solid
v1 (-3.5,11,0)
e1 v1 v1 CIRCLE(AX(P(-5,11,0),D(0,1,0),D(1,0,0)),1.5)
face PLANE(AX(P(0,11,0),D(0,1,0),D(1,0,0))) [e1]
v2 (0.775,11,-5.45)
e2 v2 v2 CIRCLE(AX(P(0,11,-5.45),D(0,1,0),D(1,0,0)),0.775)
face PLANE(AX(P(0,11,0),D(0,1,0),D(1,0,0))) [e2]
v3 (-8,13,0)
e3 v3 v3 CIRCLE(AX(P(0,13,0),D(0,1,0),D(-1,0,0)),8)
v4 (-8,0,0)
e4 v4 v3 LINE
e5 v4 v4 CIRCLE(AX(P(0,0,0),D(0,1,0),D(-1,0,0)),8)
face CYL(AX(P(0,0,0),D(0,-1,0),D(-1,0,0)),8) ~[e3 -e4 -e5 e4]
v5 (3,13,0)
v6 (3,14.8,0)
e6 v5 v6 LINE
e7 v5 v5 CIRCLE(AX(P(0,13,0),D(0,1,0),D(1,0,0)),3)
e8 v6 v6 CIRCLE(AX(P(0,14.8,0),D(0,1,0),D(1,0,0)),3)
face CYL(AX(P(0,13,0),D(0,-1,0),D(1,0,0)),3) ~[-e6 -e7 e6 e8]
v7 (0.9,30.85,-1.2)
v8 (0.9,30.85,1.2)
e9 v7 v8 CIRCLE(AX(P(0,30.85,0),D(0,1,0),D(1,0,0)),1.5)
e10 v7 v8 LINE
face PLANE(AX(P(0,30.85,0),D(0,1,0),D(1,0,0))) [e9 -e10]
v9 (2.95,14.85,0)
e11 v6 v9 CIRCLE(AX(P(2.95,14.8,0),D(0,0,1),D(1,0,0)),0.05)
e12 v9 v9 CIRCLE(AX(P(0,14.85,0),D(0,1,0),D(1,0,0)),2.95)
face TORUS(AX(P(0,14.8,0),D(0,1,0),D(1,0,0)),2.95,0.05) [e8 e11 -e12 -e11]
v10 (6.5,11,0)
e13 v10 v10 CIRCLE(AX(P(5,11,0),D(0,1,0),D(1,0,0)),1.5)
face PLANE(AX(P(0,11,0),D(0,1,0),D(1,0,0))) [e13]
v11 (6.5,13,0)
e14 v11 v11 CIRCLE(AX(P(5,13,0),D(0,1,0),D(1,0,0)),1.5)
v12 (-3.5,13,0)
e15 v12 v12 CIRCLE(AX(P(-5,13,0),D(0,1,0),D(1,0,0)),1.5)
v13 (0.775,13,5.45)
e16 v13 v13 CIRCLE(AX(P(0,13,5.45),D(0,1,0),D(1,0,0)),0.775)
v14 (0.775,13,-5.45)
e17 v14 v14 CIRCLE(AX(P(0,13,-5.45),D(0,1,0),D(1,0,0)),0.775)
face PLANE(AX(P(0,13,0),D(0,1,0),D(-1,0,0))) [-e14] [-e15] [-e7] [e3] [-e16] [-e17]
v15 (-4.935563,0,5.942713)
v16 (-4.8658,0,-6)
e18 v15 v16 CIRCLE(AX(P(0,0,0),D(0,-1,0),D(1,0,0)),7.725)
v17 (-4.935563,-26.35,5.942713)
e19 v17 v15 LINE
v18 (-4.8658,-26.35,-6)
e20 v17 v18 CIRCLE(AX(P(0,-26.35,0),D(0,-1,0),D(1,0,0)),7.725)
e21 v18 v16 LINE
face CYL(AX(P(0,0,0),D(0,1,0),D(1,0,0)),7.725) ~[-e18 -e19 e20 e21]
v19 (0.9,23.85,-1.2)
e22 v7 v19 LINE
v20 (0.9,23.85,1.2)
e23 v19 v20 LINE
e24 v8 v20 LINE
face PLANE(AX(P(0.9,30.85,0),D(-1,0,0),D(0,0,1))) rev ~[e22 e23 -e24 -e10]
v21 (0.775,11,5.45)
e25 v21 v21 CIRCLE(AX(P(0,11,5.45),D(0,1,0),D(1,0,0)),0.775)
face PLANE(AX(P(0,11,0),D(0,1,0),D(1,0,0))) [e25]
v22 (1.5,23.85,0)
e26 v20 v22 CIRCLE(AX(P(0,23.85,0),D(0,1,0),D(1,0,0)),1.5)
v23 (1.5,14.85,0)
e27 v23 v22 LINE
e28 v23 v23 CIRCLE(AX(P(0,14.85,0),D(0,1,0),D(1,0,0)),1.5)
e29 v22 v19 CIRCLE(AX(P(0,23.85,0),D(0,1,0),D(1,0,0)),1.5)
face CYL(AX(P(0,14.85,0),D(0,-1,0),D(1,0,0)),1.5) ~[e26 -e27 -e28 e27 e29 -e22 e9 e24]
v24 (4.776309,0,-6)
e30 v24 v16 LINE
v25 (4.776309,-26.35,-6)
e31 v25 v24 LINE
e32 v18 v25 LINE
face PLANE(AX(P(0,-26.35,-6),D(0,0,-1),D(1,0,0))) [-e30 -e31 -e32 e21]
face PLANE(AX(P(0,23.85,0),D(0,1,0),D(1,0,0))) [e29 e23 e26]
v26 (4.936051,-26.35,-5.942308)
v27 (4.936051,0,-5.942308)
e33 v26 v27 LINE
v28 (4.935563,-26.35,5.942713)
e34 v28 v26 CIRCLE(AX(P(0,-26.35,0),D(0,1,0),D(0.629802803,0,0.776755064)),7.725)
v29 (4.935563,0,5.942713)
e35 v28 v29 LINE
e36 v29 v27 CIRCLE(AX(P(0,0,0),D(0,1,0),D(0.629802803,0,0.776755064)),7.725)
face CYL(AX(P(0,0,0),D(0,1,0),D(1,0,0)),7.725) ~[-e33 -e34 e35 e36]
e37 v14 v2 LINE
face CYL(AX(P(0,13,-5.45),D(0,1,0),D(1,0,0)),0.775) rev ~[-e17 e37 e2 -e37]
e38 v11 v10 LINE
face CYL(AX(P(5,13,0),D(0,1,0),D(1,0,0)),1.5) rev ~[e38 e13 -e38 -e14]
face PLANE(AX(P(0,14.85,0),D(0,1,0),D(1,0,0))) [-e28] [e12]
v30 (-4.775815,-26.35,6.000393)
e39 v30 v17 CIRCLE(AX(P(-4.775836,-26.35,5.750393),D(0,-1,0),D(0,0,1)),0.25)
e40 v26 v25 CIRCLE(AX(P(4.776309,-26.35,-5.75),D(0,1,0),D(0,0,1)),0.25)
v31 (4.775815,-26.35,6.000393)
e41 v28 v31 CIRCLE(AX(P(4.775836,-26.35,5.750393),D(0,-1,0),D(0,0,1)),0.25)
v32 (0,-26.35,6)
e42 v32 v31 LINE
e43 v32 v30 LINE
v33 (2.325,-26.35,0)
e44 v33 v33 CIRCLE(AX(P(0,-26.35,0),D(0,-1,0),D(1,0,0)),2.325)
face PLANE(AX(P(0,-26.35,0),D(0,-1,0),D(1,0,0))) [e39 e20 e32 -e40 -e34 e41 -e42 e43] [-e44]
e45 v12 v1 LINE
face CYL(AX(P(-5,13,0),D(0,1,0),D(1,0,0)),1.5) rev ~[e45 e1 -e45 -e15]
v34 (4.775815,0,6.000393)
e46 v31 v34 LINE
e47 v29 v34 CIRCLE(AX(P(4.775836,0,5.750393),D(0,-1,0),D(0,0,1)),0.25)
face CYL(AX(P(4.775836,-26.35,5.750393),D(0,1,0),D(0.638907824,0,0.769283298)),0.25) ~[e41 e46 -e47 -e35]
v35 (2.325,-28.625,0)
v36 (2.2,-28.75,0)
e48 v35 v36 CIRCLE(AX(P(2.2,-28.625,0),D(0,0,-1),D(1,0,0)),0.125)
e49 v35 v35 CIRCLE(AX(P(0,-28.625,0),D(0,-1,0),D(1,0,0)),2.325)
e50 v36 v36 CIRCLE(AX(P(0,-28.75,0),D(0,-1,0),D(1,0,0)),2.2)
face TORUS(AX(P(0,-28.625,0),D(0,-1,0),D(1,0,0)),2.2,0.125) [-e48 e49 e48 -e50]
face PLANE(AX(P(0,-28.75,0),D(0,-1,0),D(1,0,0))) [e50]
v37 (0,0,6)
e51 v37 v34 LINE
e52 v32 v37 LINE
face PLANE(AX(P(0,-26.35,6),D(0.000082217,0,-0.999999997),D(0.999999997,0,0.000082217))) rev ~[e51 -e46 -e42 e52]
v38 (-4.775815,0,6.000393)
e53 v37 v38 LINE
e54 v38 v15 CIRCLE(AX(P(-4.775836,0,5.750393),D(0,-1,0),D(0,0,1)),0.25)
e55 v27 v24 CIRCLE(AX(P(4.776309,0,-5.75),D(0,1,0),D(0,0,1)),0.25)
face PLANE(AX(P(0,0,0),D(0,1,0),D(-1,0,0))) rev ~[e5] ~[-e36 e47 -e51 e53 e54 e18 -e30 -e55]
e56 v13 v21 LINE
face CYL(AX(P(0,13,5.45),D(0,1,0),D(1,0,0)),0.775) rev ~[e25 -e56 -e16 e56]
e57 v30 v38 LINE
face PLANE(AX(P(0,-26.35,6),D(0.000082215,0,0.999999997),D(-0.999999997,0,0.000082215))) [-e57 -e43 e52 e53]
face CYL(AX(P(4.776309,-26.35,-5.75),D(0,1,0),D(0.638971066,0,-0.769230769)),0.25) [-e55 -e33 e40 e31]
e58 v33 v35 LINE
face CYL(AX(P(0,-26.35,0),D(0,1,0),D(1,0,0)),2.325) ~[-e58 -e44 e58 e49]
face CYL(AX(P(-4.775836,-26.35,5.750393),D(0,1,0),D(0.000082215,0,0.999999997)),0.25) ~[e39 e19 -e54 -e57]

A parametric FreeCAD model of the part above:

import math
import FreeCAD as App
import Part
import Sketcher

V = App.Vector


def edges_at(feature, points):
    """Names of the edges that pass closest to the given points."""
    edges = feature.Shape.Edges
    near = lambda p: min(range(len(edges)), key=lambda i: edges[i].distToShape(Part.Vertex(*p))[0])
    return sorted({f"Edge{near(p) + 1}" for p in points})

doc = App.newDocument("Part")
params = doc.addObject("Spreadsheet::Sheet", "Params")
for row, (alias, value) in enumerate([
    ("sketch1_diameter", "16 mm"),
    ("pad1_length", "13 mm"),
    ("sketch2_diameter", "6 mm"),
    ("pad2_length", "1.85 mm"),
    ("sketch3_diameter", "3 mm"),
    ("pad3_length", "16 mm"),
    ("sketch4_radius", "1.5 mm"),
    ("sketch4_height", "2.4 mm"),
    ("pocket1_length", "7 mm"),
    ("sketch5_diameter", "3 mm"),
    ("pocket2_length", "2 mm"),
    ("sketch6_diameter", "1.55 mm"),
    ("pocket3_length", "2 mm"),
    ("sketch7_diameter", "15.45 mm"),
    ("pad4_length", "26.35 mm"),
    ("pocket4_length", "26.35 mm"),
    ("sketch9_diameter", "4.65 mm"),
    ("pad5_length", "2.4 mm"),
    ("fillet_radius", "0.125 mm"),
    ("fillet2_radius", "0.05 mm"),
    ("fillet3_radius", "0.25 mm"),
], start=1):
    params.set(f"A{row}", alias)
    params.set(f"B{row}", "=" + value)
    params.setAlias(f"B{row}", alias)

body = doc.addObject("PartDesign::Body", "Body")

sketch1 = body.newObject("Sketcher::SketchObject", "Sketch")
sketch1.AttachmentSupport = (doc.getObject("XZ_Plane"), [""])
sketch1.MapMode = "FlatFace"
sketch1.addGeometry(Part.Circle(V(0, 0, 0), V(0, 0, 1), 8), False)
sketch1.addConstraint([
    Sketcher.Constraint("Coincident", 0, 3, -1, 1),
    Sketcher.Constraint("Diameter", 0, 16.0),
])
sketch1.setExpression("Constraints[1]", "Params.sketch1_diameter")
pad1 = body.newObject("PartDesign::Pad", "Pad")
pad1.Profile = sketch1
pad1.setExpression("Length", "Params.pad1_length")
pad1.Reversed = True

sketch2 = body.newObject("Sketcher::SketchObject", "Sketch001")
sketch2.AttachmentSupport = (doc.getObject("XZ_Plane"), [""])
sketch2.MapMode = "FlatFace"
sketch2.AttachmentOffset = App.Placement(V(0, 0, -13), App.Rotation())
sketch2.addGeometry(Part.Circle(V(0, 0, 0), V(0, 0, 1), 3), False)
sketch2.addConstraint([
    Sketcher.Constraint("Coincident", 0, 3, -1, 1),
    Sketcher.Constraint("Diameter", 0, 6.0),
])
sketch2.setExpression("Constraints[1]", "Params.sketch2_diameter")
pad2 = body.newObject("PartDesign::Pad", "Pad001")
pad2.Profile = sketch2
pad2.setExpression("Length", "Params.pad2_length")
pad2.Reversed = True

sketch3 = body.newObject("Sketcher::SketchObject", "Sketch002")
sketch3.AttachmentSupport = (doc.getObject("XZ_Plane"), [""])
sketch3.MapMode = "FlatFace"
sketch3.AttachmentOffset = App.Placement(V(0, 0, -14.85), App.Rotation())
sketch3.addGeometry(Part.Circle(V(0, 0, 0), V(0, 0, 1), 1.5), False)
sketch3.addConstraint([
    Sketcher.Constraint("Coincident", 0, 3, -1, 1),
    Sketcher.Constraint("Diameter", 0, 3.0),
])
sketch3.setExpression("Constraints[1]", "Params.sketch3_diameter")
pad3 = body.newObject("PartDesign::Pad", "Pad002")
pad3.Profile = sketch3
pad3.setExpression("Length", "Params.pad3_length")
pad3.Reversed = True

sketch4 = body.newObject("Sketcher::SketchObject", "Sketch003")
sketch4.AttachmentSupport = (doc.getObject("XZ_Plane"), [""])
sketch4.MapMode = "FlatFace"
sketch4.AttachmentOffset = App.Placement(V(0, 0, -30.85), App.Rotation())
sketch4.addGeometry([
    Part.ArcOfCircle(Part.Circle(V(0, 0, 0), V(0, 0, 1), 1.5), math.radians(-53.130102), math.radians(53.130102)),
    Part.LineSegment(V(0.9, -1.2, 0), V(0.9, 1.2, 0)),
], False)
sketch4.addConstraint([
    Sketcher.Constraint("Coincident", 0, 1, 1, 1),
    Sketcher.Constraint("Coincident", 1, 2, 0, 2),
    Sketcher.Constraint("Vertical", 1),
    Sketcher.Constraint("Coincident", 0, 3, -1, 1),
    Sketcher.Constraint("Radius", 0, 1.5),
    Sketcher.Constraint("DistanceY", 1, 1, 1, 2, 2.4),
])
sketch4.setExpression("Constraints[4]", "Params.sketch4_radius")
sketch4.setExpression("Constraints[5]", "Params.sketch4_height")
pocket1 = body.newObject("PartDesign::Pocket", "Pocket")
pocket1.Profile = sketch4
pocket1.setExpression("Length", "Params.pocket1_length")
pocket1.Reversed = True

sketch5 = body.newObject("Sketcher::SketchObject", "Sketch004")
sketch5.AttachmentSupport = (doc.getObject("XZ_Plane"), [""])
sketch5.MapMode = "FlatFace"
sketch5.AttachmentOffset = App.Placement(V(0, 0, -13), App.Rotation())
sketch5.addGeometry([
    Part.Circle(V(5, 0, 0), V(0, 0, 1), 1.5),
    Part.Circle(V(-5, 0, 0), V(0, 0, 1), 1.5),
], False)
sketch5.addConstraint([
    Sketcher.Constraint("Equal", 0, 1),
    Sketcher.Constraint("Symmetric", 0, 3, 1, 3, -1, 1),
    Sketcher.Constraint("PointOnObject", 0, 3, -1),
    Sketcher.Constraint("Diameter", 0, 3.0),
    Sketcher.Constraint("DistanceX", -1, 1, 0, 3, 5.0),
])
sketch5.setExpression("Constraints[3]", "Params.sketch5_diameter")
pocket2 = body.newObject("PartDesign::Pocket", "Pocket001")
pocket2.Profile = sketch5
pocket2.setExpression("Length", "Params.pocket2_length")
pocket2.Reversed = True

sketch6 = body.newObject("Sketcher::SketchObject", "Sketch005")
sketch6.AttachmentSupport = (doc.getObject("XZ_Plane"), [""])
sketch6.MapMode = "FlatFace"
sketch6.AttachmentOffset = App.Placement(V(0, 0, -13), App.Rotation())
sketch6.addGeometry([
    Part.Circle(V(0, 5.45, 0), V(0, 0, 1), 0.775),
    Part.Circle(V(0, -5.45, 0), V(0, 0, 1), 0.775),
], False)
sketch6.addConstraint([
    Sketcher.Constraint("Equal", 0, 1),
    Sketcher.Constraint("Symmetric", 0, 3, 1, 3, -1, 1),
    Sketcher.Constraint("PointOnObject", 0, 3, -2),
    Sketcher.Constraint("Diameter", 0, 1.55),
    Sketcher.Constraint("DistanceY", 1, 3, 0, 3, 10.9),
])
sketch6.setExpression("Constraints[3]", "Params.sketch6_diameter")
pocket3 = body.newObject("PartDesign::Pocket", "Pocket002")
pocket3.Profile = sketch6
pocket3.setExpression("Length", "Params.pocket3_length")
pocket3.Reversed = True

sketch7 = body.newObject("Sketcher::SketchObject", "Sketch006")
sketch7.AttachmentSupport = (doc.getObject("XZ_Plane"), [""])
sketch7.MapMode = "FlatFace"
sketch7.addGeometry(Part.Circle(V(0, 0, 0), V(0, 0, 1), 7.725), False)
sketch7.addConstraint([
    Sketcher.Constraint("Coincident", 0, 3, -1, 1),
    Sketcher.Constraint("Diameter", 0, 15.45),
])
sketch7.setExpression("Constraints[1]", "Params.sketch7_diameter")
pad4 = body.newObject("PartDesign::Pad", "Pad003")
pad4.Profile = sketch7
pad4.setExpression("Length", "Params.pad4_length")

sketch8 = body.newObject("Sketcher::SketchObject", "Sketch007")
sketch8.AttachmentSupport = (doc.getObject("XZ_Plane"), [""])
sketch8.MapMode = "FlatFace"
sketch8.AttachmentOffset = App.Placement(V(0, 0, 26.35), App.Rotation())
sketch8.addGeometry([
    Part.LineSegment(V(4.8658, -6, 0), V(-4.8658, -6, 0)),
    Part.ArcOfCircle(Part.Circle(V(0, 0, 0), V(0, 0, 1), 7.725), math.radians(-129.0409), math.radians(-50.9591)),
    Part.ArcOfCircle(Part.Circle(V(0, 0, 0), V(0, 0, 1), 7.725), math.radians(50.964425), math.radians(129.036151)),
    Part.LineSegment(V(-4.8653, 6.0004, 0), V(0, 6, 0)),
    Part.LineSegment(V(0, 6, 0), V(4.8652, 6.0004, 0)),
], False)
sketch8.addConstraint([
    Sketcher.Constraint("Coincident", 0, 1, 1, 2),
    Sketcher.Constraint("Coincident", 1, 1, 0, 2),
    Sketcher.Constraint("Coincident", 2, 2, 3, 1),
    Sketcher.Constraint("Coincident", 3, 2, 4, 1),
    Sketcher.Constraint("Coincident", 4, 2, 2, 1),
    Sketcher.Constraint("Horizontal", 0),
    Sketcher.Constraint("Coincident", 1, 3, -1, 1),
    Sketcher.Constraint("Coincident", 2, 3, -1, 1),
    Sketcher.Constraint("Equal", 1, 2),
    Sketcher.Constraint("PointOnObject", 3, 2, -2),
    Sketcher.Constraint("Parallel", 3, 4),
    Sketcher.Constraint("Horizontal", 2, 2, 4, 2),
    Sketcher.Constraint("DistanceY", 0, 1, -1, 1, 6.0),
    Sketcher.Constraint("DistanceY", -1, 1, 3, 2, 6.0),
    Sketcher.Constraint("Radius", 1, 7.725),
])
pocket4 = body.newObject("PartDesign::Pocket", "Pocket003")
pocket4.Profile = sketch8
pocket4.setExpression("Length", "Params.pocket4_length")

sketch9 = body.newObject("Sketcher::SketchObject", "Sketch008")
sketch9.AttachmentSupport = (doc.getObject("XZ_Plane"), [""])
sketch9.MapMode = "FlatFace"
sketch9.AttachmentOffset = App.Placement(V(0, 0, 26.35), App.Rotation())
sketch9.addGeometry(Part.Circle(V(0, 0, 0), V(0, 0, 1), 2.325), False)
sketch9.addConstraint([
    Sketcher.Constraint("Coincident", 0, 3, -1, 1),
    Sketcher.Constraint("Diameter", 0, 4.65),
])
sketch9.setExpression("Constraints[1]", "Params.sketch9_diameter")
pad5 = body.newObject("PartDesign::Pad", "Pad004")
pad5.Profile = sketch9
pad5.setExpression("Length", "Params.pad5_length")
doc.recompute()

fillet = body.newObject("PartDesign::Fillet", "Fillet")
fillet.Base = (pad5, edges_at(pad5, [(-2.325, -28.75, 0)]))
fillet.setExpression("Radius", "Params.fillet_radius")
doc.recompute()

fillet2 = body.newObject("PartDesign::Fillet", "Fillet001")
fillet2.Base = (fillet, edges_at(fillet, [(-3, 14.85, 0)]))
fillet2.setExpression("Radius", "Params.fillet2_radius")
doc.recompute()

fillet3 = body.newObject("PartDesign::Fillet", "Fillet002")
fillet3.Base = (fillet2, edges_at(fillet2, [(4.866, -13.175, -6), (-4.865, -13.175, 6), (4.865, -13.175, 6)]))
fillet3.setExpression("Radius", "Params.fillet3_radius")

doc.recompute()
